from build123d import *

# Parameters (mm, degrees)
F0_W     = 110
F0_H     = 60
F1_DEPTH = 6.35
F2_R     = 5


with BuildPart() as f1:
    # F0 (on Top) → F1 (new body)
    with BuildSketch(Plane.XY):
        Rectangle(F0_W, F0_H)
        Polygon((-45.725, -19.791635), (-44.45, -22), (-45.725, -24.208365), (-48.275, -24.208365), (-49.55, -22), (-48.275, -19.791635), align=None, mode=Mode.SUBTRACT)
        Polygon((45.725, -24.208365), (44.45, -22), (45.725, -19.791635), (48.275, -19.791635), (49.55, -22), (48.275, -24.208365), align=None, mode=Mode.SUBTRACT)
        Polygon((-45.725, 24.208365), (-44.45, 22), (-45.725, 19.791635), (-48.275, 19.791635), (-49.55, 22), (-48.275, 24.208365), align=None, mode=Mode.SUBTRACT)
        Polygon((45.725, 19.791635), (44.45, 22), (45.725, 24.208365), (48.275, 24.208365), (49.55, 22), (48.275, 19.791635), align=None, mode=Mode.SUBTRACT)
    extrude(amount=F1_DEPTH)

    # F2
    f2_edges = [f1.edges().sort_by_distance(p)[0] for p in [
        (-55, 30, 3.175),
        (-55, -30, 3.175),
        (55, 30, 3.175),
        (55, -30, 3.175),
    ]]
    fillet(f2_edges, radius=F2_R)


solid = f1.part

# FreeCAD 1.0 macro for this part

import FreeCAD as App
import Part
import Sketcher

V = App.Vector
Q = App.Units.Quantity


def edges_at(feature, points):
    """Names of the edges that pass closest to the given points."""
    edges = feature.Shape.Edges
    near = lambda p: min(range(len(edges)), key=lambda i: edges[i].distToShape(Part.Vertex(*p))[0])
    return sorted({f"Edge{near(p) + 1}" for p in points})


def add_polygon(sketch, points):
    """Adds a closed chain of lines whose ends are joined by coincident constraints."""
    first, n = sketch.GeometryCount, len(points)
    for a, b in zip(points, points[1:] + points[:1]):
        sketch.addGeometry(Part.LineSegment(App.Vector(*a, 0), App.Vector(*b, 0)), False)
    for i in range(n):
        sketch.addConstraint(Sketcher.Constraint("Coincident", first + i, 2, first + (i + 1) % n, 1))

doc = App.newDocument("Part")
params = doc.addObject("Spreadsheet::Sheet", "Params")
for row, (alias, value) in enumerate([
    ("sketch1_width", "110 mm"),
    ("sketch1_height", "60 mm"),
    ("sketch1_width2", "2.55 mm"),
    ("pad1_length", "6.35 mm"),
    ("fillet_radius", "5 mm"),
], start=1):
    params.set(f"A{row}", alias)
    params.set(f"B{row}", "=" + value)
    params.setAlias(f"B{row}", alias)

body = doc.addObject("PartDesign::Body", "Body")

sketch1 = doc.addObject("Sketcher::SketchObject", "Sketch")
body.addObject(sketch1)
sketch1.AttachmentSupport = (doc.XY_Plane, [""])
sketch1.MapMode = "FlatFace"
add_polygon(sketch1, [(-55, 30), (-55, -30), (55, -30), (55, 30)])
add_polygon(sketch1, [(-48.3, -19.8), (-45.7, -19.8), (-44.5, -22), (-45.7, -24.2), (-48.3, -24.2), (-49.5, -22)])
add_polygon(sketch1, [(48.3, -24.2), (45.7, -24.2), (44.5, -22), (45.7, -19.8), (48.3, -19.8), (49.5, -22)])
add_polygon(sketch1, [(-48.3, 24.2), (-45.7, 24.2), (-44.5, 22), (-45.7, 19.8), (-48.3, 19.8), (-49.5, 22)])
add_polygon(sketch1, [(48.3, 19.8), (45.7, 19.8), (44.5, 22), (45.7, 24.2), (48.3, 24.2), (49.5, 22)])
sketch1.addConstraint([
    Sketcher.Constraint("Vertical", 0),
    Sketcher.Constraint("Horizontal", 1),
    Sketcher.Constraint("Vertical", 2),
    Sketcher.Constraint("Horizontal", 3),
    Sketcher.Constraint("Horizontal", 4),
    Sketcher.Constraint("Horizontal", 7),
    Sketcher.Constraint("Horizontal", 10),
    Sketcher.Constraint("Horizontal", 13),
    Sketcher.Constraint("Horizontal", 16),
    Sketcher.Constraint("Horizontal", 19),
    Sketcher.Constraint("Horizontal", 22),
    Sketcher.Constraint("Horizontal", 25),
    Sketcher.Constraint("Symmetric", 0, 2, 2, 2, -1, 1),
    Sketcher.Constraint("Symmetric", 10, 2, 16, 2, -1, 1),
    Sketcher.Constraint("Symmetric", 11, 2, 17, 2, -1, 1),
    Sketcher.Constraint("Symmetric", 12, 2, 18, 2, -1, 1),
    Sketcher.Constraint("Symmetric", 14, 2, 20, 2, -1, 1),
    Sketcher.Constraint("Symmetric", 4, 2, 22, 2, -1, 1),
    Sketcher.Constraint("Symmetric", 5, 2, 23, 2, -1, 1),
    Sketcher.Constraint("Symmetric", 6, 2, 24, 2, -1, 1),
    Sketcher.Constraint("Symmetric", 8, 2, 26, 2, -1, 1),
    Sketcher.Constraint("Symmetric", 6, 2, 10, 2, -2),
    Sketcher.Constraint("Symmetric", 5, 2, 11, 2, -2),
    Sketcher.Constraint("Symmetric", 4, 2, 12, 2, -2),
    Sketcher.Constraint("Symmetric", 8, 2, 14, 2, -2),
    Sketcher.Constraint("Parallel", 5, 8),
    Sketcher.Constraint("Parallel", 6, 9),
    Sketcher.Constraint("Parallel", 8, 11),
    Sketcher.Constraint("Parallel", 11, 14),
    Sketcher.Constraint("Parallel", 12, 15),
    Sketcher.Constraint("Parallel", 17, 20),
    Sketcher.Constraint("Parallel", 18, 21),
    Sketcher.Constraint("Parallel", 23, 26),
    Sketcher.Constraint("Parallel", 24, 27),
    Sketcher.Constraint("Horizontal", 5, 2, 8, 2),
    Sketcher.Constraint("Vertical", 4, 2, 6, 2),
    Sketcher.Constraint("DistanceX", 1, 1, 1, 2, Q("110 mm")),
    Sketcher.Constraint("DistanceY", 0, 2, 0, 1, Q("60 mm")),
    Sketcher.Constraint("Angle", 5, Q("-60.000002 deg")),
    Sketcher.Constraint("DistanceY", 5, 2, -1, 1, Q("22 mm")),
    Sketcher.Constraint("DistanceX", 4, 1, 4, 2, Q("2.55 mm")),
    Sketcher.Constraint("DistanceX", 8, 2, 5, 2, Q("5.1 mm")),
    Sketcher.Constraint("DistanceX", 5, 2, 11, 2, Q("88.9 mm")),
])
sketch1.setExpression("Constraints[64]", "Params.sketch1_width")
sketch1.setExpression("Constraints[65]", "Params.sketch1_height")
sketch1.setExpression("Constraints[68]", "Params.sketch1_width2")
pad1 = doc.addObject("PartDesign::Pad", "Pad")
body.addObject(pad1)
pad1.Profile = sketch1
pad1.setExpression("Length", "Params.pad1_length")
doc.recompute()

fillet = doc.addObject("PartDesign::Fillet", "Fillet")
body.addObject(fillet)
fillet.Base = (pad1, edges_at(pad1, [
    (-55, 30, 3.175),
    (-55, -30, 3.175),
    (55, 30, 3.175),
    (55, -30, 3.175),
]))
fillet.setExpression("Radius", "Params.fillet_radius")

doc.recompute()
